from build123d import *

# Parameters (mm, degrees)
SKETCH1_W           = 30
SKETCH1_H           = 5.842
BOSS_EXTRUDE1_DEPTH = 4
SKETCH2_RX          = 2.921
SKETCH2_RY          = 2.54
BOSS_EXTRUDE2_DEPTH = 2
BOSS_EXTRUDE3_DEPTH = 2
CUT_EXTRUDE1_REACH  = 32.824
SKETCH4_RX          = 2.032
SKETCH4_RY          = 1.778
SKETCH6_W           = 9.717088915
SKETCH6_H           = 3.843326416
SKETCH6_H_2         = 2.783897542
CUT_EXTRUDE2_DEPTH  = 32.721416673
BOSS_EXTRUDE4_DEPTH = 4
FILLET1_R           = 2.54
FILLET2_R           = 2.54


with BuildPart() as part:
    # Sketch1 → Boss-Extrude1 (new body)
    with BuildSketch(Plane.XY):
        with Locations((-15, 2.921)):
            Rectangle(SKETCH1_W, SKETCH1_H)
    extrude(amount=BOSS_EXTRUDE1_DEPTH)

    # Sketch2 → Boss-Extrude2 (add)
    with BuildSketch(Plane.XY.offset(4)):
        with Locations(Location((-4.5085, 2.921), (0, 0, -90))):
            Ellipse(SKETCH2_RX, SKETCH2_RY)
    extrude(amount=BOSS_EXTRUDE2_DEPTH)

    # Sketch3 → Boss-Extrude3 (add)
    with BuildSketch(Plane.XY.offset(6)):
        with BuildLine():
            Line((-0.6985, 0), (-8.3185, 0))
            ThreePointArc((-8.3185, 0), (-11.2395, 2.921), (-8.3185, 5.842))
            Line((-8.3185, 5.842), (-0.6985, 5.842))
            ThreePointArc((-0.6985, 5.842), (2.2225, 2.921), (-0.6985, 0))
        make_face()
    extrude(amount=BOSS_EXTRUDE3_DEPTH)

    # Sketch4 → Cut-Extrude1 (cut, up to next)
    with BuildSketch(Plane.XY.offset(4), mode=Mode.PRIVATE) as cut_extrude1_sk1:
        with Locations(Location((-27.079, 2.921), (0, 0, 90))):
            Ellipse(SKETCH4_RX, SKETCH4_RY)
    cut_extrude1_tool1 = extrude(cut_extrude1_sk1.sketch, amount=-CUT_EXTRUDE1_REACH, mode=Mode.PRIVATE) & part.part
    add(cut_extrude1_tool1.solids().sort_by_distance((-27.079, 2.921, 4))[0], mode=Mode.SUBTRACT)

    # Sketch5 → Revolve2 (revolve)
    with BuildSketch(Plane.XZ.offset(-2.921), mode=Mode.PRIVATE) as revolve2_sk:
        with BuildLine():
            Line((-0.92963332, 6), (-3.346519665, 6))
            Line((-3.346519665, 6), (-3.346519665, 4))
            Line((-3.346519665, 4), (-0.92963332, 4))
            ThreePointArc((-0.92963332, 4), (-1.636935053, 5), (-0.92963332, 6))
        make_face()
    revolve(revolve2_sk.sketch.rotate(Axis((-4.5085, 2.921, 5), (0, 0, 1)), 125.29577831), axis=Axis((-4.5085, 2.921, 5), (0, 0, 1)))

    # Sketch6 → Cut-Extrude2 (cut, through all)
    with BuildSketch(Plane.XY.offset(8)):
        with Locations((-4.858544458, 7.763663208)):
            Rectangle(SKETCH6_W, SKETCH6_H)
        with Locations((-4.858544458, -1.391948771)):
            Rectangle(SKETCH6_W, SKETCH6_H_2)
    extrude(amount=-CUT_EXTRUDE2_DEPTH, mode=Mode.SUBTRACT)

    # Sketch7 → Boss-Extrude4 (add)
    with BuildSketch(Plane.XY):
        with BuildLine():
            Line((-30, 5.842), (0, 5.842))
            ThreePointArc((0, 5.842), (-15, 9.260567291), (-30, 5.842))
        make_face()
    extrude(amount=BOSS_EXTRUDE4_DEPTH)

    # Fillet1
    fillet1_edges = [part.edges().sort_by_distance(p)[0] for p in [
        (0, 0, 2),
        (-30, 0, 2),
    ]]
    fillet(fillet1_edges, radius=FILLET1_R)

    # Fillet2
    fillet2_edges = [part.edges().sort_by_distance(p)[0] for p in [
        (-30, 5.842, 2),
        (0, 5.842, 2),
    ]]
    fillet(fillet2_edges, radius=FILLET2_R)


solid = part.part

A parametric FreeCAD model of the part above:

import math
import FreeCAD as App
import Part
import Sketcher
Q = App.Units.Quantity


def edges_at(feature, points):
    """Names of the edges that pass closest to the given points."""
    edges = feature.Shape.Edges
    near = lambda p: min(range(len(edges)), key=lambda i: edges[i].distToShape(Part.Vertex(*p))[0])
    return sorted({f"Edge{near(p) + 1}" for p in points})

doc = App.newDocument("Part")
body = doc.addObject("PartDesign::Body", "Body")

# Sketch on XY plane
sketch1 = body.newObject("Sketcher::SketchObject", "Sketch")
sketch1.AttachmentSupport = (doc.getObject("XY_Plane"), [""])
sketch1.MapMode = "FlatFace"
sketch1.addGeometry([
    Part.LineSegment(App.Vector(-30, 6, 0), App.Vector(-30, 0, 0)),
    Part.LineSegment(App.Vector(-30, 0, 0), App.Vector(0, 0, 0)),
    Part.LineSegment(App.Vector(0, 0, 0), App.Vector(0, 6, 0)),
    Part.LineSegment(App.Vector(0, 6, 0), App.Vector(-30, 6, 0)),
], False)
sketch1.addConstraint([
    Sketcher.Constraint("Coincident", 0, 2, 1, 1),
    Sketcher.Constraint("Coincident", 1, 2, 2, 1),
    Sketcher.Constraint("Coincident", 2, 2, 3, 1),
    Sketcher.Constraint("Coincident", 3, 2, 0, 1),
    Sketcher.Constraint("Vertical", 0),
    Sketcher.Constraint("Horizontal", 1),
    Sketcher.Constraint("Vertical", 2),
    Sketcher.Constraint("Horizontal", 3),
    Sketcher.Constraint("Coincident", 1, 2, -1, 1),
    Sketcher.Constraint("DistanceX", 1, 1, 1, 2, Q("30 mm")),
    Sketcher.Constraint("DistanceY", 0, 2, 0, 1, Q("5.842 mm")),
])
pad1 = body.newObject("PartDesign::Pad", "Pad")
pad1.Profile = sketch1
pad1.Length = 4

# Sketch on XY plane
sketch2 = body.newObject("Sketcher::SketchObject", "Sketch001")
sketch2.AttachmentSupport = (doc.getObject("XY_Plane"), [""])
sketch2.MapMode = "FlatFace"
sketch2.AttachmentOffset = App.Placement(App.Vector(0, 0, 4), App.Rotation())
sketch2.addGeometry(Part.Ellipse(App.Vector(-4.5085, 0, 0), App.Vector(-1.9685, 2.921, 0), App.Vector(-4.5085, 2.921, 0)), False)
sketch2.addConstraint(Sketcher.Constraint("Block", 0))
pad2 = body.newObject("PartDesign::Pad", "Pad001")
pad2.Profile = sketch2
pad2.Length = 2

# Sketch on XY plane
sketch3 = body.newObject("Sketcher::SketchObject", "Sketch002")
sketch3.AttachmentSupport = (doc.getObject("XY_Plane"), [""])
sketch3.MapMode = "FlatFace"
sketch3.AttachmentOffset = App.Placement(App.Vector(0, 0, 6), App.Rotation())
sketch3.addGeometry([
    Part.LineSegment(App.Vector(-8.3, 0, 0), App.Vector(-0.7, 0, 0)),
    Part.ArcOfCircle(Part.Circle(App.Vector(-0.7, 2.9, 0), App.Vector(0, 0, 1), 2.9), math.radians(-90), math.radians(90)),
    Part.LineSegment(App.Vector(-0.7, 5.8, 0), App.Vector(-8.3, 5.8, 0)),
    Part.ArcOfCircle(Part.Circle(App.Vector(-8.3, 2.9, 0), App.Vector(0, 0, 1), 2.9), math.radians(90), math.radians(270)),
], False)
sketch3.addConstraint([
    Sketcher.Constraint("Tangent", 0, 2, 1, 1),
    Sketcher.Constraint("Tangent", 1, 2, 2, 1),
    Sketcher.Constraint("Tangent", 2, 2, 3, 1),
    Sketcher.Constraint("Tangent", 3, 2, 0, 1),
    Sketcher.Constraint("Horizontal", 0),
    Sketcher.Constraint("Horizontal", 2),
    Sketcher.Constraint("PointOnObject", 0, 2, -1),
    Sketcher.Constraint("Radius", 1, Q("2.921 mm")),
    Sketcher.Constraint("DistanceX", 0, 1, 0, 2, Q("7.62 mm")),
    Sketcher.Constraint("DistanceX", 1, 3, -1, 1, Q("0.6985 mm")),
])
pad3 = body.newObject("PartDesign::Pad", "Pad002")
pad3.Profile = sketch3
pad3.Length = 2

# Sketch on XY plane
sketch4 = body.newObject("Sketcher::SketchObject", "Sketch003")
sketch4.AttachmentSupport = (doc.getObject("XY_Plane"), [""])
sketch4.MapMode = "FlatFace"
sketch4.AttachmentOffset = App.Placement(App.Vector(0, 0, 4), App.Rotation())
sketch4.addGeometry(Part.Ellipse(App.Vector(-27.079, 4.953, 0), App.Vector(-28.857, 2.921, 0), App.Vector(-27.079, 2.921, 0)), False)
sketch4.addConstraint(Sketcher.Constraint("Block", 0))
pocket1 = body.newObject("PartDesign::Pocket", "Pocket")
pocket1.Profile = sketch4
pocket1.Type = "UpToFirst"

# Sketch on XZ plane
sketch5 = body.newObject("Sketcher::SketchObject", "Sketch004")
sketch5.AttachmentSupport = (doc.getObject("XZ_Plane"), [""])
sketch5.MapMode = "FlatFace"
sketch5.AttachmentOffset = App.Placement(App.Vector(0, 0, -2.921), App.Rotation())
sketch5.addGeometry([
    Part.LineSegment(App.Vector(-0.9, 6, 0), App.Vector(-3.3, 6, 0)),
    Part.LineSegment(App.Vector(-3.3, 6, 0), App.Vector(-3.3, 4, 0)),
    Part.LineSegment(App.Vector(-3.3, 4, 0), App.Vector(-0.9, 4, 0)),
    Part.ArcOfCircle(Part.Circle(App.Vector(-0.6, 5, 0), App.Vector(0, 0, 1), 1.1), math.radians(109), math.radians(251)),
], False)
sketch5.addGeometry(Part.LineSegment(App.Vector(-4.5, 4, 0), App.Vector(-4.5, 6, 0)), True)  # axis
sketch5.addConstraint([
    Sketcher.Constraint("Coincident", 0, 2, 1, 1),
    Sketcher.Constraint("Coincident", 1, 2, 2, 1),
    Sketcher.Constraint("Coincident", 2, 2, 3, 2),
    Sketcher.Constraint("Coincident", 3, 1, 0, 1),
    Sketcher.Constraint("Horizontal", 0),
    Sketcher.Constraint("Vertical", 1),
    Sketcher.Constraint("Horizontal", 2),
    Sketcher.Constraint("Vertical", 4),
    Sketcher.Constraint("Horizontal", 2, 2, 4, 1),
    Sketcher.Constraint("Horizontal", 3, 1, 4, 2),
    Sketcher.Constraint("Vertical", 2, 2, 3, 1),
    Sketcher.Constraint("DistanceY", 1, 2, 1, 1, Q("2 mm")),
    Sketcher.Constraint("DistanceY", -1, 1, 3, 3, Q("5 mm")),
    Sketcher.Constraint("Radius", 3, Q("1.060563 mm")),
    Sketcher.Constraint("DistanceX", 4, 1, -1, 1, Q("4.5085 mm")),
    Sketcher.Constraint("DistanceX", 0, 2, 0, 1, Q("2.416886 mm")),
    Sketcher.Constraint("DistanceX", 0, 2, -1, 1, Q("3.34652 mm")),
])
revolution = body.newObject("PartDesign::Revolution", "Revolution")
revolution.Profile = sketch5
revolution.ReferenceAxis = (sketch5, ["Axis0"])
revolution.Angle = 360

# Sketch on XY plane
sketch6 = body.newObject("Sketcher::SketchObject", "Sketch005")
sketch6.AttachmentSupport = (doc.getObject("XY_Plane"), [""])
sketch6.MapMode = "FlatFace"
sketch6.AttachmentOffset = App.Placement(App.Vector(0, 0, 8), App.Rotation())
sketch6.addGeometry([
    Part.LineSegment(App.Vector(-9.7, 9.7, 0), App.Vector(-9.7, 5.8, 0)),  # 0
    Part.LineSegment(App.Vector(-9.7, 5.8, 0), App.Vector(0, 5.8, 0)),  # 1
    Part.LineSegment(App.Vector(0, 5.8, 0), App.Vector(0, 9.7, 0)),  # 2
    Part.LineSegment(App.Vector(0, 9.7, 0), App.Vector(-9.7, 9.7, 0)),  # 3
    Part.LineSegment(App.Vector(-9.7, 0, 0), App.Vector(-9.7, -2.8, 0)),  # 4
    Part.LineSegment(App.Vector(-9.7, -2.8, 0), App.Vector(0, -2.8, 0)),  # 5
    Part.LineSegment(App.Vector(0, -2.8, 0), App.Vector(0, 0, 0)),  # 6
    Part.LineSegment(App.Vector(0, 0, 0), App.Vector(-9.7, 0, 0)),  # 7
], False)
sketch6.addConstraint([
    Sketcher.Constraint("Coincident", 0, 2, 1, 1),
    Sketcher.Constraint("Coincident", 1, 2, 2, 1),
    Sketcher.Constraint("Coincident", 2, 2, 3, 1),
    Sketcher.Constraint("Coincident", 3, 2, 0, 1),
    Sketcher.Constraint("Coincident", 4, 2, 5, 1),
    Sketcher.Constraint("Coincident", 5, 2, 6, 1),
    Sketcher.Constraint("Coincident", 6, 2, 7, 1),
    Sketcher.Constraint("Coincident", 7, 2, 4, 1),
    Sketcher.Constraint("Vertical", 0),
    Sketcher.Constraint("Horizontal", 1),
    Sketcher.Constraint("Vertical", 2),
    Sketcher.Constraint("Horizontal", 3),
    Sketcher.Constraint("Vertical", 4),
    Sketcher.Constraint("Horizontal", 5),
    Sketcher.Constraint("Vertical", 6),
    Sketcher.Constraint("Horizontal", 7),
    Sketcher.Constraint("Coincident", 6, 2, -1, 1),
    Sketcher.Constraint("PointOnObject", 1, 2, -2),
    Sketcher.Constraint("Vertical", 3, 2, 4, 2),
    Sketcher.Constraint("DistanceY", -1, 1, 0, 2, Q("5.842 mm")),
    Sketcher.Constraint("DistanceX", 1, 1, 1, 2, Q("9.717089 mm")),
    Sketcher.Constraint("DistanceY", 0, 2, 0, 1, Q("3.843326 mm")),
    Sketcher.Constraint("DistanceY", 4, 2, 4, 1, Q("2.783898 mm")),
])
pocket2 = body.newObject("PartDesign::Pocket", "Pocket001")
pocket2.Profile = sketch6
pocket2.Type = "ThroughAll"

# Sketch on XY plane
sketch7 = body.newObject("Sketcher::SketchObject", "Sketch006")
sketch7.AttachmentSupport = (doc.getObject("XY_Plane"), [""])
sketch7.MapMode = "FlatFace"
sketch7.addGeometry([
    Part.LineSegment(App.Vector(-30, 6, 0), App.Vector(0, 6, 0)),
    Part.ArcOfCircle(Part.Circle(App.Vector(-15, -25, 0), App.Vector(0, 0, 1), 35), math.radians(64), math.radians(116)),
], False)
sketch7.addConstraint([
    Sketcher.Constraint("Coincident", 0, 1, 1, 2),
    Sketcher.Constraint("Coincident", 1, 1, 0, 2),
    Sketcher.Constraint("Horizontal", 0),
    Sketcher.Constraint("PointOnObject", 1, 1, -2),
    Sketcher.Constraint("DistanceX", 0, 1, 0, 2, Q("30 mm")),
    Sketcher.Constraint("DistanceY", -1, 1, 0, 1, Q("5.842 mm")),
    Sketcher.Constraint("Radius", 1, Q("34.617807 mm")),
])
pad4 = body.newObject("PartDesign::Pad", "Pad003")
pad4.Profile = sketch7
pad4.Length = 4
doc.recompute()

fillet = body.newObject("PartDesign::Fillet", "Fillet")
fillet.Base = (pad4, edges_at(pad4, [(0, 0, 2), (-30, 0, 2)]))
fillet.Radius = 2.54
doc.recompute()

fillet2 = body.newObject("PartDesign::Fillet", "Fillet001")
fillet2.Base = (fillet, edges_at(fillet, [(-30, 5.842, 2), (0, 5.842, 2)]))
fillet2.Radius = 2.54

doc.recompute()
